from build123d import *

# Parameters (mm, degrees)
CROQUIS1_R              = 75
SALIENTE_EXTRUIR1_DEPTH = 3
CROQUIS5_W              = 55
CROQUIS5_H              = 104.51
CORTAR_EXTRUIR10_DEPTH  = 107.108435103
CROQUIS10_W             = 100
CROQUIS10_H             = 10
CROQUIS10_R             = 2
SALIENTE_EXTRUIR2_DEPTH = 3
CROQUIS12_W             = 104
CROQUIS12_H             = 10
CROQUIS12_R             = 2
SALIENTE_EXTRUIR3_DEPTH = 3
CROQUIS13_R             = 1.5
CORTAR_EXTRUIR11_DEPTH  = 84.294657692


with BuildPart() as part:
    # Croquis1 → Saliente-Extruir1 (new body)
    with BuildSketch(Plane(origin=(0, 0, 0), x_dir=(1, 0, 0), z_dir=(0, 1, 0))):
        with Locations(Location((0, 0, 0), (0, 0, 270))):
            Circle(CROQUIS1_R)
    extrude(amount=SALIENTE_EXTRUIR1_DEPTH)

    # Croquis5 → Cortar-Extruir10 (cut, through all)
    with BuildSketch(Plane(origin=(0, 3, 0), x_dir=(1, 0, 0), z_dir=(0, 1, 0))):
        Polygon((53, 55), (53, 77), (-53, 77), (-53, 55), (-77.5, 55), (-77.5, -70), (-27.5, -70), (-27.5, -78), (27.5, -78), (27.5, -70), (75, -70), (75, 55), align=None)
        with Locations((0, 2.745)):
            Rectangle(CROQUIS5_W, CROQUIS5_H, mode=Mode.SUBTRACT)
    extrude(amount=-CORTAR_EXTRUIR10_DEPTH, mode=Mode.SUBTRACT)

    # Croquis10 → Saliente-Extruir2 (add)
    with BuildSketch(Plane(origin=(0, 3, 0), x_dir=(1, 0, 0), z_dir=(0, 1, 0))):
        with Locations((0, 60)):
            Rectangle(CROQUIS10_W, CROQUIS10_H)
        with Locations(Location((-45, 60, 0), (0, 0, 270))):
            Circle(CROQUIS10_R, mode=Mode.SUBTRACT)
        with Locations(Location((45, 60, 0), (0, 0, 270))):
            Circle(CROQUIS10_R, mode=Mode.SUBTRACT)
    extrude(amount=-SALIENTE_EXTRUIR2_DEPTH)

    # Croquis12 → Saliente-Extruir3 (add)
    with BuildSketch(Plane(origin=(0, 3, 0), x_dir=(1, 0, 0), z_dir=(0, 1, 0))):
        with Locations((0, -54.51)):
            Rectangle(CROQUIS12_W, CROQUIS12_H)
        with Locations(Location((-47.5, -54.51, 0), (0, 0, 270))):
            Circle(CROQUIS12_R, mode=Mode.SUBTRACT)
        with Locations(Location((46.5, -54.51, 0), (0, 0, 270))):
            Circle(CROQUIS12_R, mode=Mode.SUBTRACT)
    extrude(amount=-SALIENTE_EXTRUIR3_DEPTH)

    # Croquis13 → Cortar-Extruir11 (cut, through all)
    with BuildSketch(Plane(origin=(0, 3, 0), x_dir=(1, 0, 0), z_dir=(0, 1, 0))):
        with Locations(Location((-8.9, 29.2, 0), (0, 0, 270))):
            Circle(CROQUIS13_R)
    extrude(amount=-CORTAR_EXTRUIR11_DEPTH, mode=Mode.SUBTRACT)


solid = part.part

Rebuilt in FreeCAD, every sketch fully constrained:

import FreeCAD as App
import Part
import Sketcher


def add_polygon(sketch, points):
    """Adds a closed chain of lines whose ends are joined by coincident constraints."""
    first, n = sketch.GeometryCount, len(points)
    for a, b in zip(points, points[1:] + points[:1]):
        sketch.addGeometry(Part.LineSegment(App.Vector(*a, 0), App.Vector(*b, 0)), False)
    for i in range(n):
        sketch.addConstraint(Sketcher.Constraint("Coincident", first + i, 2, first + (i + 1) % n, 1))

doc = App.newDocument("Part")
body = doc.addObject("PartDesign::Body", "Body")

# Sketch on XZ plane
sketch1 = body.newObject("Sketcher::SketchObject", "Sketch")
sketch1.AttachmentSupport = (doc.getObject("XZ_Plane"), [""])
sketch1.MapMode = "FlatFace"
sketch1.addGeometry(Part.Circle(App.Vector(0, 0, 0), App.Vector(0, 0, 1), 75), False)
sketch1.addConstraint(Sketcher.Constraint("Coincident", 0, 3, -1, 1))
sketch1.addConstraint(Sketcher.Constraint("Diameter", 0, 150.0))
pad1 = body.newObject("PartDesign::Pad", "Pad")
pad1.Profile = sketch1
pad1.Length = 3
pad1.Reversed = True

# Sketch on XZ plane
sketch2 = body.newObject("Sketcher::SketchObject", "Sketch001")
sketch2.AttachmentSupport = (doc.getObject("XZ_Plane"), [""])
sketch2.MapMode = "FlatFace"
sketch2.AttachmentOffset = App.Placement(App.Vector(0, 0, -3), App.Rotation())
add_polygon(sketch2, [(53, -55), (53, -77), (-53, -77), (-53, -55), (-77.5, -55), (-77.5, 70), (-27.5, 70), (-27.5, 78), (27.5, 78), (27.5, 70), (75, 70), (75, -55)])  # lines 0-11
add_polygon(sketch2, [(27.5, 49.51), (-27.5, 49.51), (-27.5, -55), (27.5, -55)])  # lines 12-15
sketch2.addConstraint(Sketcher.Constraint("Vertical", 0))
sketch2.addConstraint(Sketcher.Constraint("Horizontal", 1))
sketch2.addConstraint(Sketcher.Constraint("Vertical", 2))
sketch2.addConstraint(Sketcher.Constraint("Horizontal", 3))
sketch2.addConstraint(Sketcher.Constraint("Vertical", 4))
sketch2.addConstraint(Sketcher.Constraint("Horizontal", 5))
sketch2.addConstraint(Sketcher.Constraint("Vertical", 6))
sketch2.addConstraint(Sketcher.Constraint("Horizontal", 7))
sketch2.addConstraint(Sketcher.Constraint("Vertical", 8))
sketch2.addConstraint(Sketcher.Constraint("Horizontal", 9))
sketch2.addConstraint(Sketcher.Constraint("Vertical", 10))
sketch2.addConstraint(Sketcher.Constraint("Horizontal", 11))
sketch2.addConstraint(Sketcher.Constraint("Horizontal", 12))
sketch2.addConstraint(Sketcher.Constraint("Vertical", 13))
sketch2.addConstraint(Sketcher.Constraint("Horizontal", 14))
sketch2.addConstraint(Sketcher.Constraint("Vertical", 15))
sketch2.addConstraint(Sketcher.Constraint("Symmetric", 5, 2, 8, 2, -2))
sketch2.addConstraint(Sketcher.Constraint("Symmetric", 2, 2, 11, 2, -2))
sketch2.addConstraint(Sketcher.Constraint("Horizontal", 11, 2, 13, 2))
sketch2.addConstraint(Sketcher.Constraint("Vertical", 6, 2, 12, 2))
sketch2.addConstraint(Sketcher.Constraint("Vertical", 8, 2, 14, 2))
sketch2.addConstraint(Sketcher.Constraint("Equal", 11, 0))
sketch2.addConstraint(Sketcher.Constraint("DistanceX", 1, 2, 1, 1, 106.0))
sketch2.addConstraint(Sketcher.Constraint("DistanceX", 5, 1, 5, 2, 50.0))
sketch2.addConstraint(Sketcher.Constraint("DistanceX", 7, 1, 7, 2, 55.0))
sketch2.addConstraint(Sketcher.Constraint("DistanceX", 11, 2, 11, 1, 22.0))
sketch2.addConstraint(Sketcher.Constraint("DistanceY", 4, 1, 4, 2, 125.0))
sketch2.addConstraint(Sketcher.Constraint("DistanceY", 6, 1, 6, 2, 8.0))
sketch2.addConstraint(Sketcher.Constraint("DistanceY", 0, 2, -1, 1, 77.0))
sketch2.addConstraint(Sketcher.Constraint("DistanceY", 13, 2, 13, 1, 104.51))
pocket1 = body.newObject("PartDesign::Pocket", "Pocket")
pocket1.Profile = sketch2
pocket1.Type = "ThroughAll"
pocket1.Reversed = True

# Sketch on XZ plane
sketch3 = body.newObject("Sketcher::SketchObject", "Sketch002")
sketch3.AttachmentSupport = (doc.getObject("XZ_Plane"), [""])
sketch3.MapMode = "FlatFace"
sketch3.AttachmentOffset = App.Placement(App.Vector(0, 0, -3), App.Rotation())
add_polygon(sketch3, [(-50, -65), (-50, -55), (50, -55), (50, -65)])  # lines 0-3
sketch3.addGeometry(Part.Circle(App.Vector(-45, -60, 0), App.Vector(0, 0, 1), 2), False)  # 4
sketch3.addGeometry(Part.Circle(App.Vector(45, -60, 0), App.Vector(0, 0, 1), 2), False)  # 5
sketch3.addConstraint(Sketcher.Constraint("Vertical", 0))
sketch3.addConstraint(Sketcher.Constraint("Horizontal", 1))
sketch3.addConstraint(Sketcher.Constraint("Vertical", 2))
sketch3.addConstraint(Sketcher.Constraint("Horizontal", 3))
sketch3.addConstraint(Sketcher.Constraint("Equal", 4, 5))
sketch3.addConstraint(Sketcher.Constraint("Symmetric", 4, 3, 5, 3, -2))
sketch3.addConstraint(Sketcher.Constraint("Diameter", 4, 4.0))
sketch3.addConstraint(Sketcher.Constraint("DistanceX", 1, 1, 1, 2, 100.0))
sketch3.addConstraint(Sketcher.Constraint("DistanceY", 0, 1, 0, 2, 10.0))
sketch3.addConstraint(Sketcher.Constraint("DistanceX", 4, 3, -1, 1, 45.0))
sketch3.addConstraint(Sketcher.Constraint("DistanceY", 4, 3, -1, 1, 60.0))
sketch3.addConstraint(Sketcher.Constraint("DistanceX", 0, 2, -1, 1, 50.0))
sketch3.addConstraint(Sketcher.Constraint("DistanceY", 0, 2, -1, 1, 55.0))
pad2 = body.newObject("PartDesign::Pad", "Pad001")
pad2.Profile = sketch3
pad2.Length = 3

# Sketch on XZ plane
sketch4 = body.newObject("Sketcher::SketchObject", "Sketch003")
sketch4.AttachmentSupport = (doc.getObject("XZ_Plane"), [""])
sketch4.MapMode = "FlatFace"
sketch4.AttachmentOffset = App.Placement(App.Vector(0, 0, -3), App.Rotation())
add_polygon(sketch4, [(-52, 49.51), (-52, 59.51), (52, 59.51), (52, 49.51)])  # lines 0-3
sketch4.addGeometry(Part.Circle(App.Vector(-47.5, 54.51, 0), App.Vector(0, 0, 1), 2), False)  # 4
sketch4.addGeometry(Part.Circle(App.Vector(46.5, 54.51, 0), App.Vector(0, 0, 1), 2), False)  # 5
sketch4.addConstraint(Sketcher.Constraint("Vertical", 0))
sketch4.addConstraint(Sketcher.Constraint("Horizontal", 1))
sketch4.addConstraint(Sketcher.Constraint("Vertical", 2))
sketch4.addConstraint(Sketcher.Constraint("Horizontal", 3))
sketch4.addConstraint(Sketcher.Constraint("Equal", 4, 5))
sketch4.addConstraint(Sketcher.Constraint("Horizontal", 4, 3, 5, 3))
sketch4.addConstraint(Sketcher.Constraint("Diameter", 4, 4.0))
sketch4.addConstraint(Sketcher.Constraint("DistanceX", 1, 1, 1, 2, 104.0))
sketch4.addConstraint(Sketcher.Constraint("DistanceY", 0, 1, 0, 2, 10.0))
sketch4.addConstraint(Sketcher.Constraint("DistanceX", 0, 2, -1, 1, 52.0))
sketch4.addConstraint(Sketcher.Constraint("DistanceX", 4, 3, 5, 3, 94.0))
sketch4.addConstraint(Sketcher.Constraint("DistanceY", 4, 3, 0, 2, 5.0))
sketch4.addConstraint(Sketcher.Constraint("DistanceX", 4, 3, -1, 1, 47.5))
sketch4.addConstraint(Sketcher.Constraint("DistanceY", -1, 1, 4, 3, 54.51))
pad3 = body.newObject("PartDesign::Pad", "Pad002")
pad3.Profile = sketch4
pad3.Length = 3

# Sketch on XZ plane
sketch5 = body.newObject("Sketcher::SketchObject", "Sketch004")
sketch5.AttachmentSupport = (doc.getObject("XZ_Plane"), [""])
sketch5.MapMode = "FlatFace"
sketch5.AttachmentOffset = App.Placement(App.Vector(0, 0, -3), App.Rotation())
sketch5.addGeometry(Part.Circle(App.Vector(-8.9, -29.2, 0), App.Vector(0, 0, 1), 1.5), False)
sketch5.addConstraint(Sketcher.Constraint("Diameter", 0, 3.0))
sketch5.addConstraint(Sketcher.Constraint("DistanceX", 0, 3, -1, 1, 8.9))
sketch5.addConstraint(Sketcher.Constraint("DistanceY", 0, 3, -1, 1, 29.2))
pocket2 = body.newObject("PartDesign::Pocket", "Pocket001")
pocket2.Profile = sketch5
pocket2.Type = "ThroughAll"
pocket2.Reversed = True

doc.recompute()
